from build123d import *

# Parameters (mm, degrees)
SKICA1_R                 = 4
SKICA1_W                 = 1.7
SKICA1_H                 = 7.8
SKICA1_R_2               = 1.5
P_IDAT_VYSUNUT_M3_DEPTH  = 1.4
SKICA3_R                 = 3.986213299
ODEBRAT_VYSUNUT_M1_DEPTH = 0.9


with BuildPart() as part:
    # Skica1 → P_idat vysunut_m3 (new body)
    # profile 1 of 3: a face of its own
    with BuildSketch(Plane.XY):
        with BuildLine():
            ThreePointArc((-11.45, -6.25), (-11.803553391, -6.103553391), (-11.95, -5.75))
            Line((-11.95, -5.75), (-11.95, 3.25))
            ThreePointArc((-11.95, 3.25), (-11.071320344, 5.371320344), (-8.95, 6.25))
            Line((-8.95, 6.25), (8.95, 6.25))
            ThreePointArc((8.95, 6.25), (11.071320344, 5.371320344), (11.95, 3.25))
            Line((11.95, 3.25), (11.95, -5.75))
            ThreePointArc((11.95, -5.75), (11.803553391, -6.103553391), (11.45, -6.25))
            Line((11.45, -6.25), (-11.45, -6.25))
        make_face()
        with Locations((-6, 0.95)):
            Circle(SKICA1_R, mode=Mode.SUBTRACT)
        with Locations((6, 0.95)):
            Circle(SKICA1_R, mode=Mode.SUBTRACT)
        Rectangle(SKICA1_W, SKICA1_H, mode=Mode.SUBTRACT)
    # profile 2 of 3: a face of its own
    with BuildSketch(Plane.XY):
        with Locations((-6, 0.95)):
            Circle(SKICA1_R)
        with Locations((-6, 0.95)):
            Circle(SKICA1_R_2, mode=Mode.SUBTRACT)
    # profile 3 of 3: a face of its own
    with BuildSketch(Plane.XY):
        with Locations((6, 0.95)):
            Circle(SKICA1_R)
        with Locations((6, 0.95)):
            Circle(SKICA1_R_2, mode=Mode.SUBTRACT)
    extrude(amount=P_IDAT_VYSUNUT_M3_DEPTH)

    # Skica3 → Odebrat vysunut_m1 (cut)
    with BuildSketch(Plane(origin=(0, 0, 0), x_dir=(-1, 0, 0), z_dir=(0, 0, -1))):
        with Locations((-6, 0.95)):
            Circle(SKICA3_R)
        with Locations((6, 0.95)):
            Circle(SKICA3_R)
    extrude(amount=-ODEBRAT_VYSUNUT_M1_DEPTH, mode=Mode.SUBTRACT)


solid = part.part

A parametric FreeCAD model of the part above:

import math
import FreeCAD as App
import Part
import Sketcher
from FreeCAD import Vector

doc = App.newDocument("Part")
body = doc.addObject("PartDesign::Body", "Body")

sketch1 = body.newObject("Sketcher::SketchObject", "Sketch")
sketch1.AttachmentSupport = (doc.getObject("XY_Plane"), [""])
sketch1.MapMode = "FlatFace"
sketch1.addGeometry([
    Part.ArcOfCircle(Part.Circle(Vector(-11.45, -5.75, 0), Vector(0, 0, 1), 0.5), math.radians(180), math.radians(270)),
    Part.LineSegment(Vector(-11.45, -6.25, 0), Vector(11.45, -6.25, 0)),
    Part.ArcOfCircle(Part.Circle(Vector(11.45, -5.75, 0), Vector(0, 0, 1), 0.5), math.radians(-90), math.radians(0)),
    Part.LineSegment(Vector(11.95, -5.75, 0), Vector(11.95, 3.25, 0)),
    Part.ArcOfCircle(Part.Circle(Vector(8.95, 3.25, 0), Vector(0, 0, 1), 3), math.radians(0), math.radians(90)),
    Part.LineSegment(Vector(8.95, 6.25, 0), Vector(-8.95, 6.25, 0)),
    Part.ArcOfCircle(Part.Circle(Vector(-8.95, 3.25, 0), Vector(0, 0, 1), 3), math.radians(90), math.radians(180)),
    Part.LineSegment(Vector(-11.95, 3.25, 0), Vector(-11.95, -5.75, 0)),
    Part.LineSegment(Vector(-0.85, -3.9, 0), Vector(-0.85, 3.9, 0)),
    Part.LineSegment(Vector(-0.85, 3.9, 0), Vector(0.85, 3.9, 0)),
    Part.LineSegment(Vector(0.85, 3.9, 0), Vector(0.85, -3.9, 0)),
    Part.LineSegment(Vector(0.85, -3.9, 0), Vector(-0.85, -3.9, 0)),
    Part.Circle(Vector(6, 0.95, 0), Vector(0, 0, 1), 1.5),
    Part.Circle(Vector(-6, 0.95, 0), Vector(0, 0, 1), 1.5),
], False)
sketch1.addConstraint([
    Sketcher.Constraint("Tangent", 0, 2, 1, 1),
    Sketcher.Constraint("Tangent", 1, 2, 2, 1),
    Sketcher.Constraint("Tangent", 2, 2, 3, 1),
    Sketcher.Constraint("Tangent", 3, 2, 4, 1),
    Sketcher.Constraint("Tangent", 4, 2, 5, 1),
    Sketcher.Constraint("Tangent", 5, 2, 6, 1),
    Sketcher.Constraint("Tangent", 6, 2, 7, 1),
    Sketcher.Constraint("Tangent", 7, 2, 0, 1),
    Sketcher.Constraint("Coincident", 8, 2, 9, 1),
    Sketcher.Constraint("Coincident", 9, 2, 10, 1),
    Sketcher.Constraint("Coincident", 10, 2, 11, 1),
    Sketcher.Constraint("Coincident", 11, 2, 8, 1),
    Sketcher.Constraint("Horizontal", 1),
    Sketcher.Constraint("Vertical", 3),
    Sketcher.Constraint("Horizontal", 5),
    Sketcher.Constraint("Vertical", 7),
    Sketcher.Constraint("Vertical", 8),
    Sketcher.Constraint("Horizontal", 9),
    Sketcher.Constraint("Vertical", 10),
    Sketcher.Constraint("Horizontal", 11),
    Sketcher.Constraint("Equal", 0, 2),
    Sketcher.Constraint("Equal", 4, 6),
    Sketcher.Constraint("Equal", 12, 13),
    Sketcher.Constraint("Symmetric", 8, 2, 10, 2, -1, 1),
    Sketcher.Constraint("Symmetric", 12, 3, 13, 3, -2),
    Sketcher.Constraint("Diameter", 12, 3.0),
    Sketcher.Constraint("Radius", 4, 3.0),
    Sketcher.Constraint("Radius", 0, 0.5),
    Sketcher.Constraint("DistanceY", 3, 1, 3, 2, 9.0),
    Sketcher.Constraint("DistanceX", 1, 1, 1, 2, 22.9),
    Sketcher.Constraint("DistanceX", 9, 1, 9, 2, 1.7),
    Sketcher.Constraint("DistanceY", 8, 1, 8, 2, 7.8),
    Sketcher.Constraint("DistanceX", -1, 1, 12, 3, 6.0),
    Sketcher.Constraint("DistanceY", 12, 3, 4, 3, 2.3),
    Sketcher.Constraint("DistanceX", 6, 3, 8, 2, 8.1),
    Sketcher.Constraint("DistanceY", 0, 3, -1, 1, 5.75),
])
pad1 = body.newObject("PartDesign::Pad", "Pad")
pad1.Profile = sketch1
pad1.Length = 1.4

sketch2 = body.newObject("Sketcher::SketchObject", "Sketch001")
sketch2.AttachmentSupport = (doc.getObject("XY_Plane"), [""])
sketch2.MapMode = "FlatFace"
sketch2.addGeometry([
    Part.Circle(Vector(6, 0.9, 0), Vector(0, 0, 1), 4),
    Part.Circle(Vector(-6, 0.9, 0), Vector(0, 0, 1), 4),
], False)
sketch2.addConstraint([
    Sketcher.Constraint("Equal", 0, 1),
    Sketcher.Constraint("Symmetric", 0, 3, 1, 3, -2),
    Sketcher.Constraint("DistanceX", -1, 1, 0, 3, 6.0),
    Sketcher.Constraint("DistanceY", -1, 1, 0, 3, 0.95),
    Sketcher.Constraint("Diameter", 0, 7.972427),
])
pocket1 = body.newObject("PartDesign::Pocket", "Pocket")
pocket1.Profile = sketch2
pocket1.Length = 0.9
pocket1.Reversed = True

doc.recompute()
